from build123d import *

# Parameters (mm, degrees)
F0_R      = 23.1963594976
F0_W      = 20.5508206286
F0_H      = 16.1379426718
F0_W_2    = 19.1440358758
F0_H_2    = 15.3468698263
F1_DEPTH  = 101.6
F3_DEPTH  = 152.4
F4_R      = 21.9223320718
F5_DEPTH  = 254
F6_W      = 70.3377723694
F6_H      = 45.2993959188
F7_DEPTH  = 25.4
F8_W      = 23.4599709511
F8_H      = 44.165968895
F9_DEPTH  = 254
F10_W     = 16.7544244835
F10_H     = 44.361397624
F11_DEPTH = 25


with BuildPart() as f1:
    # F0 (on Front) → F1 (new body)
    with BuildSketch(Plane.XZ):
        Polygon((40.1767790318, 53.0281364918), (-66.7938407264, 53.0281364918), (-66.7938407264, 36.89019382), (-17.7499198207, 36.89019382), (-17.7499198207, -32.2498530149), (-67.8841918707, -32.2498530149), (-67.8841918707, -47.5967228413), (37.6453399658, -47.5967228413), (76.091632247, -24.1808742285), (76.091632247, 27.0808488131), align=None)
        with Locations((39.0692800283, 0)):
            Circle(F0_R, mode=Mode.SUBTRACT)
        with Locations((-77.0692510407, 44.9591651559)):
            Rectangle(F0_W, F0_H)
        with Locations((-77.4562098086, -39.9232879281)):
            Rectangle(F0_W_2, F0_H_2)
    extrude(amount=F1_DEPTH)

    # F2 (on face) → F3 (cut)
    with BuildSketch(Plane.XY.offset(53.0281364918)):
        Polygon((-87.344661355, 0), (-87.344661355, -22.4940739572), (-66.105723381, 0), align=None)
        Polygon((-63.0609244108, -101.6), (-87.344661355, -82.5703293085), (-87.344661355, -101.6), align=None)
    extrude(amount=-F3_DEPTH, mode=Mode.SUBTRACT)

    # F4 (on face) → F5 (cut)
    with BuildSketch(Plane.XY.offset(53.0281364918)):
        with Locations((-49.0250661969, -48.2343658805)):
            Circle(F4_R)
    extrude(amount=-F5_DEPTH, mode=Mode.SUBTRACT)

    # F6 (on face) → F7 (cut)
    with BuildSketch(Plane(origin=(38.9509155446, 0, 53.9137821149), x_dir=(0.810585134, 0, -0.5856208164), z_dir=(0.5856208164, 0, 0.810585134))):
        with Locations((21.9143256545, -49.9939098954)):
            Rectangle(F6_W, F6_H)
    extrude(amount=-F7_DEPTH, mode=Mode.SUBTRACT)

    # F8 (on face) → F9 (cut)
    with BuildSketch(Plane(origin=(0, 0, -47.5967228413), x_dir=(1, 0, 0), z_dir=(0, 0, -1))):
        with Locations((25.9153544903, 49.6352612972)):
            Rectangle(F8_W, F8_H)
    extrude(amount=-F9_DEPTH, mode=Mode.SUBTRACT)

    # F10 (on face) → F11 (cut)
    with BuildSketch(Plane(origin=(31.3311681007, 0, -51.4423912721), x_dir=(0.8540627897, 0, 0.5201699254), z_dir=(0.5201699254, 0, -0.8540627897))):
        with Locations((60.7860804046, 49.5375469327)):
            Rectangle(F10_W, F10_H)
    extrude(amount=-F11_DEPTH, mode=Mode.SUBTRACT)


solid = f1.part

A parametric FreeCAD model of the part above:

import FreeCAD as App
import Part
import Sketcher

V = App.Vector
Q = App.Units.Quantity

doc = App.newDocument("Part")
body = doc.addObject("PartDesign::Body", "Body")

# Sketch on XZ plane
sketch1 = body.newObject("Sketcher::SketchObject", "Sketch")
sketch1.AttachmentSupport = (doc.getObject("XZ_Plane"), [""])
sketch1.MapMode = "FlatFace"
sketch1.addGeometry([
    Part.LineSegment(V(40, 53, 0), V(-87, 53, 0)),  # 0
    Part.LineSegment(V(-87, 53, 0), V(-87, 37, 0)),  # 1
    Part.LineSegment(V(-87, 37, 0), V(-18, 37, 0)),  # 2
    Part.LineSegment(V(-18, 37, 0), V(-18, -32, 0)),  # 3
    Part.LineSegment(V(-18, -32, 0), V(-87, -32, 0)),  # 4
    Part.LineSegment(V(-87, -32, 0), V(-87, -48, 0)),  # 5
    Part.LineSegment(V(-87, -48, 0), V(38, -48, 0)),  # 6
    Part.LineSegment(V(38, -48, 0), V(76, -24, 0)),  # 7
    Part.LineSegment(V(76, -24, 0), V(76, 27, 0)),  # 8
    Part.LineSegment(V(76, 27, 0), V(40, 53, 0)),  # 9
    Part.Circle(V(39, 0, 0), V(0, 0, 1), 23),  # 10
], False)
sketch1.addConstraint([
    Sketcher.Constraint("Coincident", 0, 2, 1, 1),
    Sketcher.Constraint("Coincident", 1, 2, 2, 1),
    Sketcher.Constraint("Coincident", 2, 2, 3, 1),
    Sketcher.Constraint("Coincident", 3, 2, 4, 1),
    Sketcher.Constraint("Coincident", 4, 2, 5, 1),
    Sketcher.Constraint("Coincident", 5, 2, 6, 1),
    Sketcher.Constraint("Coincident", 6, 2, 7, 1),
    Sketcher.Constraint("Coincident", 7, 2, 8, 1),
    Sketcher.Constraint("Coincident", 8, 2, 9, 1),
    Sketcher.Constraint("Coincident", 9, 2, 0, 1),
    Sketcher.Constraint("Horizontal", 0),
    Sketcher.Constraint("Vertical", 1),
    Sketcher.Constraint("Horizontal", 2),
    Sketcher.Constraint("Vertical", 3),
    Sketcher.Constraint("Horizontal", 4),
    Sketcher.Constraint("Vertical", 5),
    Sketcher.Constraint("Horizontal", 6),
    Sketcher.Constraint("Vertical", 8),
    Sketcher.Constraint("PointOnObject", 10, 3, -1),
    Sketcher.Constraint("Diameter", 10, 46.392719),
    Sketcher.Constraint("DistanceX", -1, 1, 6, 2, Q("1.4821 in")),
    Sketcher.Constraint("DistanceX", 0, 2, 0, 1, 127.52144),
    Sketcher.Constraint("DistanceX", 2, 1, 2, 2, 69.594742),
    Sketcher.Constraint("DistanceY", 5, 2, 5, 1, 15.34687),
    Sketcher.Constraint("DistanceX", 2, 2, 10, 3, 56.8192),
    Sketcher.Constraint("DistanceY", 3, 2, 8, 2, 59.330702),
    Sketcher.Constraint("DistanceX", 4, 2, 4, 1, 69.278308),
    Sketcher.Constraint("DistanceX", 6, 1, 6, 2, 124.673568),
    Sketcher.Constraint("DistanceY", 1, 2, 1, 1, 16.137943),
    Sketcher.Constraint("DistanceY", 3, 2, 3, 1, 69.140047),
    Sketcher.Constraint("DistanceY", 8, 1, 8, 2, 51.261723),
    Sketcher.Constraint("DistanceY", -1, 1, 8, 2, 27.080849),
    Sketcher.Constraint("DistanceX", 4, 2, 7, 2, 163.11986),
])
pad1 = body.newObject("PartDesign::Pad", "Pad")
pad1.Profile = sketch1
pad1.Length = Q("4 in")

# Sketch on XY plane
sketch2 = body.newObject("Sketcher::SketchObject", "Sketch001")
sketch2.AttachmentSupport = (doc.getObject("XY_Plane"), [""])
sketch2.MapMode = "FlatFace"
sketch2.AttachmentOffset = App.Placement(V(0, 0, 53.028136), App.Rotation())
sketch2.addGeometry([
    Part.LineSegment(V(-87, 0, 0), V(-87, -22, 0)),  # 0
    Part.LineSegment(V(-87, -22, 0), V(-66, 0, 0)),  # 1
    Part.LineSegment(V(-66, 0, 0), V(-87, 0, 0)),  # 2
    Part.LineSegment(V(-63, -102, 0), V(-87, -83, 0)),  # 3
    Part.LineSegment(V(-87, -83, 0), V(-87, -102, 0)),  # 4
    Part.LineSegment(V(-87, -102, 0), V(-63, -102, 0)),  # 5
], False)
sketch2.addConstraint([
    Sketcher.Constraint("Coincident", 0, 2, 1, 1),
    Sketcher.Constraint("Coincident", 1, 2, 2, 1),
    Sketcher.Constraint("Coincident", 2, 2, 0, 1),
    Sketcher.Constraint("Coincident", 3, 2, 4, 1),
    Sketcher.Constraint("Coincident", 4, 2, 5, 1),
    Sketcher.Constraint("Coincident", 5, 2, 3, 1),
    Sketcher.Constraint("Vertical", 0),
    Sketcher.Constraint("Horizontal", 2),
    Sketcher.Constraint("Vertical", 4),
    Sketcher.Constraint("Horizontal", 5),
    Sketcher.Constraint("PointOnObject", 1, 2, -1),
    Sketcher.Constraint("Vertical", 2, 2, 3, 2),
    Sketcher.Constraint("DistanceY", 4, 2, -1, 1, Q("4 in")),
    Sketcher.Constraint("DistanceY", 4, 2, 4, 1, 19.029671),
    Sketcher.Constraint("DistanceX", 1, 2, 5, 2, 3.044799),
    Sketcher.Constraint("DistanceX", 2, 2, 2, 1, 21.238938),
    Sketcher.Constraint("DistanceY", 0, 2, 0, 1, 22.494074),
    Sketcher.Constraint("DistanceX", 0, 2, -1, 1, 87.344661),
])
pocket1 = body.newObject("PartDesign::Pocket", "Pocket")
pocket1.Profile = sketch2
pocket1.Length = Q("6 in")

# Sketch on XY plane
sketch3 = body.newObject("Sketcher::SketchObject", "Sketch002")
sketch3.AttachmentSupport = (doc.getObject("XY_Plane"), [""])
sketch3.MapMode = "FlatFace"
sketch3.AttachmentOffset = App.Placement(V(0, 0, 53.028136), App.Rotation())
sketch3.addGeometry(Part.Circle(V(-49, -48, 0), V(0, 0, 1), 22), False)
sketch3.addConstraint([
    Sketcher.Constraint("Diameter", 0, 43.844664),
    Sketcher.Constraint("DistanceX", 0, 3, -1, 1, 49.025066),
    Sketcher.Constraint("DistanceY", 0, 3, -1, 1, 48.234366),
])
pocket2 = body.newObject("PartDesign::Pocket", "Pocket001")
pocket2.Profile = sketch3
pocket2.Length = Q("10 in")

# Sketch on an angled plane
sketch4 = body.newObject("Sketcher::SketchObject", "Sketch003")
sketch4.Placement = App.Placement(V(38.950916, 0, 53.913782), App.Rotation(V(0.810585134, 0, -0.585620816), V(0, 1, 0), V(0.585620816, 0, 0.810585134), "ZXY"))
sketch4.addGeometry([
    Part.LineSegment(V(-13, -27, 0), V(-13, -73, 0)),
    Part.LineSegment(V(-13, -73, 0), V(57, -73, 0)),
    Part.LineSegment(V(57, -73, 0), V(57, -27, 0)),
    Part.LineSegment(V(57, -27, 0), V(-13, -27, 0)),
], False)
sketch4.addConstraint([
    Sketcher.Constraint("Coincident", 0, 2, 1, 1),
    Sketcher.Constraint("Coincident", 1, 2, 2, 1),
    Sketcher.Constraint("Coincident", 2, 2, 3, 1),
    Sketcher.Constraint("Coincident", 3, 2, 0, 1),
    Sketcher.Constraint("Vertical", 0),
    Sketcher.Constraint("Horizontal", 1),
    Sketcher.Constraint("Vertical", 2),
    Sketcher.Constraint("Horizontal", 3),
    Sketcher.Constraint("DistanceX", 1, 1, 1, 2, 70.337772),
    Sketcher.Constraint("DistanceY", 0, 2, 0, 1, 45.299396),
    Sketcher.Constraint("DistanceX", 0, 2, -1, 1, 13.254561),
    Sketcher.Constraint("DistanceY", 2, 2, -1, 1, 27.344212),
])
pocket3 = body.newObject("PartDesign::Pocket", "Pocket002")
pocket3.Profile = sketch4
pocket3.Length = Q("1 in")

# Sketch on XY plane
sketch5 = body.newObject("Sketcher::SketchObject", "Sketch004")
sketch5.AttachmentSupport = (doc.getObject("XY_Plane"), [""])
sketch5.MapMode = "FlatFace"
sketch5.AttachmentOffset = App.Placement(V(0, 0, -47.596723), App.Rotation())
sketch5.addGeometry([
    Part.LineSegment(V(14, -72, 0), V(14, -28, 0)),
    Part.LineSegment(V(14, -28, 0), V(38, -28, 0)),
    Part.LineSegment(V(38, -28, 0), V(38, -72, 0)),
    Part.LineSegment(V(38, -72, 0), V(14, -72, 0)),
], False)
sketch5.addConstraint([
    Sketcher.Constraint("Coincident", 0, 2, 1, 1),
    Sketcher.Constraint("Coincident", 1, 2, 2, 1),
    Sketcher.Constraint("Coincident", 2, 2, 3, 1),
    Sketcher.Constraint("Coincident", 3, 2, 0, 1),
    Sketcher.Constraint("Vertical", 0),
    Sketcher.Constraint("Horizontal", 1),
    Sketcher.Constraint("Vertical", 2),
    Sketcher.Constraint("Horizontal", 3),
    Sketcher.Constraint("DistanceX", -1, 1, 1, 2, Q("1.4821 in")),
    Sketcher.Constraint("DistanceX", 1, 1, 1, 2, 23.459971),
    Sketcher.Constraint("DistanceY", 0, 1, 0, 2, 44.165969),
    Sketcher.Constraint("DistanceY", 0, 2, -1, 1, 27.552277),
])
pocket4 = body.newObject("PartDesign::Pocket", "Pocket003")
pocket4.Profile = sketch5
pocket4.Length = Q("10 in")
pocket4.Reversed = True

# Sketch on an angled plane
sketch6 = body.newObject("Sketcher::SketchObject", "Sketch005")
sketch6.Placement = App.Placement(V(31.331168, 0, -51.442391), App.Rotation(V(0.85406279, 0, 0.520169925), V(0, -1, 0), V(0.520169925, 0, -0.85406279), "ZXY"))
sketch6.addGeometry([
    Part.LineSegment(V(52, 72, 0), V(52, 27, 0)),
    Part.LineSegment(V(52, 27, 0), V(69, 27, 0)),
    Part.LineSegment(V(69, 27, 0), V(69, 72, 0)),
    Part.LineSegment(V(69, 72, 0), V(52, 72, 0)),
], False)
sketch6.addConstraint([
    Sketcher.Constraint("Coincident", 0, 2, 1, 1),
    Sketcher.Constraint("Coincident", 1, 2, 2, 1),
    Sketcher.Constraint("Coincident", 2, 2, 3, 1),
    Sketcher.Constraint("Coincident", 3, 2, 0, 1),
    Sketcher.Constraint("Vertical", 0),
    Sketcher.Constraint("Horizontal", 1),
    Sketcher.Constraint("Vertical", 2),
    Sketcher.Constraint("Horizontal", 3),
    Sketcher.Constraint("DistanceX", 1, 1, 1, 2, 16.754424),
    Sketcher.Constraint("DistanceY", 0, 2, 0, 1, 44.361398),
    Sketcher.Constraint("DistanceX", -1, 1, 0, 2, 52.408868),
    Sketcher.Constraint("DistanceY", -1, 1, 0, 2, 27.356848),
])
pocket5 = body.newObject("PartDesign::Pocket", "Pocket004")
pocket5.Profile = sketch6
pocket5.Length = 25

doc.recompute()
